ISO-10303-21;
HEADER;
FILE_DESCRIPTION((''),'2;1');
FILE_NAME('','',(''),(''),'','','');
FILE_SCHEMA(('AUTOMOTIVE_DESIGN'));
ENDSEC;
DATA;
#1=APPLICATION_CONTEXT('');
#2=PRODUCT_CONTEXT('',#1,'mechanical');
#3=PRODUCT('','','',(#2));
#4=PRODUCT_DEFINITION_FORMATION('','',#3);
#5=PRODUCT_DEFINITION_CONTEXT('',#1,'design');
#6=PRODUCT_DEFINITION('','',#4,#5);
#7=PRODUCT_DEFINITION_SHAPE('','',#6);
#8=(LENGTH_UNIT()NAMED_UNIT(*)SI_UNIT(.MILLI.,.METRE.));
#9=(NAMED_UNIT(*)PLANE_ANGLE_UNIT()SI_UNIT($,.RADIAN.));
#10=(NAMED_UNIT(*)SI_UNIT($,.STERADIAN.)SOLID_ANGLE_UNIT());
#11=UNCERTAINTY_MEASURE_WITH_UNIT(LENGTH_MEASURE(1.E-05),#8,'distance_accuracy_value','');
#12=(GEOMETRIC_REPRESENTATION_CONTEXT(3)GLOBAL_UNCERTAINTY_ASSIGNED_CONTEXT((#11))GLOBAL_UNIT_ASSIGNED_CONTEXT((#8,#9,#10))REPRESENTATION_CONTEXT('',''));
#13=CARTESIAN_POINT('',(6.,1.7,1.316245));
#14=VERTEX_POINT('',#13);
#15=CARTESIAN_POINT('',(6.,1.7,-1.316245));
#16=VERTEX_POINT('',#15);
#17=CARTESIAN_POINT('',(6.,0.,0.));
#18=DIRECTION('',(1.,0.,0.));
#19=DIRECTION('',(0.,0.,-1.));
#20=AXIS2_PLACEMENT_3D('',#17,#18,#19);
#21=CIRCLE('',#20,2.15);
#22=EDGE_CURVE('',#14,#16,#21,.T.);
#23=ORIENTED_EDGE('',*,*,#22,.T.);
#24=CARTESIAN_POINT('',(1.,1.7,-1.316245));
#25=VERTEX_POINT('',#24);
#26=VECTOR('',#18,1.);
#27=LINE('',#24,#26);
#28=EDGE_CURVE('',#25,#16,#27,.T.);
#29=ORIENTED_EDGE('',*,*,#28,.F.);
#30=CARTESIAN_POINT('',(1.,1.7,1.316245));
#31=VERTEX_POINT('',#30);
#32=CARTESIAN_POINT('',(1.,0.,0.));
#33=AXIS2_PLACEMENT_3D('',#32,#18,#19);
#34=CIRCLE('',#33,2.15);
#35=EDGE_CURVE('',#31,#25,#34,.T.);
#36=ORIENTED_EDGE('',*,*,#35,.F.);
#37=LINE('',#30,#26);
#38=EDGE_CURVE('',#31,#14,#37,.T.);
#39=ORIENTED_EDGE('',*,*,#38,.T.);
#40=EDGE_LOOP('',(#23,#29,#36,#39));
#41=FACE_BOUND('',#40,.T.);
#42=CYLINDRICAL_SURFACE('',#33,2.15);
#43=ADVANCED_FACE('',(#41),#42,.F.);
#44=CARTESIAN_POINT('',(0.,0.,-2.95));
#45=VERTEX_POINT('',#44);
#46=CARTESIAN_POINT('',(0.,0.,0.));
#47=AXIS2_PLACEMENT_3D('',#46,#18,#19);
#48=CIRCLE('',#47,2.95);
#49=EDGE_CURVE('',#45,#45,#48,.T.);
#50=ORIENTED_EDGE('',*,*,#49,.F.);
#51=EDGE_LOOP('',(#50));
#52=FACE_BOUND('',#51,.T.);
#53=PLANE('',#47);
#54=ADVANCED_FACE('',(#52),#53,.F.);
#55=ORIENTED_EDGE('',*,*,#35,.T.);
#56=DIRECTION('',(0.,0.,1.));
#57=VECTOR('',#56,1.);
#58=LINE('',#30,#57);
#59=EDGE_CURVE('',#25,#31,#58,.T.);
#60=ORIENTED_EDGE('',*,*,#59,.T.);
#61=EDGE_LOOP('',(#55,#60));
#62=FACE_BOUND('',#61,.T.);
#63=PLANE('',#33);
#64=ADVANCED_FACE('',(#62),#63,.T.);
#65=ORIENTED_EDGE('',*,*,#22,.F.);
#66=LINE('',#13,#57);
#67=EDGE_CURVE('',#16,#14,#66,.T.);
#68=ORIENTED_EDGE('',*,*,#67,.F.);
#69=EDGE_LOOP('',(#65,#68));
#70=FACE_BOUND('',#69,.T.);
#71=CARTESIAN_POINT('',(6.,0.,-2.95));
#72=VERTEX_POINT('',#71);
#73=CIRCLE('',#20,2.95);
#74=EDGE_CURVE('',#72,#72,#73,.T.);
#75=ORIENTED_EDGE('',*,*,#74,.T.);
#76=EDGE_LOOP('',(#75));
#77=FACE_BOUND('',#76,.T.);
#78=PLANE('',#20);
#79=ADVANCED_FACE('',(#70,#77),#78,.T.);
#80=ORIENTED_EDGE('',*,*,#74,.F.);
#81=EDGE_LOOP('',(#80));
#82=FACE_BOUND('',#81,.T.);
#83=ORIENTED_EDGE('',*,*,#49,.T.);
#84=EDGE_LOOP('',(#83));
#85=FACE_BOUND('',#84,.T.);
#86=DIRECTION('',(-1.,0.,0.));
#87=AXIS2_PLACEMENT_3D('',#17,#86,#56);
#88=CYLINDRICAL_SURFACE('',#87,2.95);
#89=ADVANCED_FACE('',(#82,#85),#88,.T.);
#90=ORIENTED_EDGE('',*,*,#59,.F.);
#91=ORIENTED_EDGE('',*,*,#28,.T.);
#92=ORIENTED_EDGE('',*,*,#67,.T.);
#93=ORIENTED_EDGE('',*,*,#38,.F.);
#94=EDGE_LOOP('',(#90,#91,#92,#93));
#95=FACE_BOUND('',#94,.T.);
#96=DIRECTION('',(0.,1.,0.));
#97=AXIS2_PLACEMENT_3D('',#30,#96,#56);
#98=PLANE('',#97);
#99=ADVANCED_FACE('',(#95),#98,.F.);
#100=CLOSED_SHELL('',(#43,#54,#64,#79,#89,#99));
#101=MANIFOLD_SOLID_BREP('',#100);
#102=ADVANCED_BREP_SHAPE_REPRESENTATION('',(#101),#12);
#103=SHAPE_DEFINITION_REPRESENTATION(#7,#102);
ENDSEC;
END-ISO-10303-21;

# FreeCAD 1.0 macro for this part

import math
import FreeCAD as App
import Part
import Sketcher

V = App.Vector

doc = App.newDocument("Part")
body = doc.addObject("PartDesign::Body", "Body")

# Sketch on YZ plane
sketch1 = body.newObject("Sketcher::SketchObject", "Sketch")
sketch1.AttachmentSupport = (doc.getObject("YZ_Plane"), [""])
sketch1.MapMode = "FlatFace"
sketch1.addGeometry(Part.Circle(V(0, 0, 0), V(0, 0, 1), 3), False)
sketch1.addConstraint([
    Sketcher.Constraint("Coincident", 0, 3, -1, 1),
    Sketcher.Constraint("Diameter", 0, 5.9),
])
pad1 = body.newObject("PartDesign::Pad", "Pad")
pad1.Profile = sketch1
pad1.Length = 6

# Sketch on YZ plane
sketch2 = body.newObject("Sketcher::SketchObject", "Sketch001")
sketch2.AttachmentSupport = (doc.getObject("YZ_Plane"), [""])
sketch2.MapMode = "FlatFace"
sketch2.AttachmentOffset = App.Placement(V(0, 0, 6), App.Rotation())
sketch2.addGeometry([
    Part.LineSegment(V(1.7, -1.3, 0), V(1.7, 1.3, 0)),
    Part.ArcOfCircle(Part.Circle(V(0, 0, 0), V(0, 0, 1), 2.1), math.radians(38), math.radians(322)),
], False)
sketch2.addConstraint([
    Sketcher.Constraint("Coincident", 0, 1, 1, 2),
    Sketcher.Constraint("Coincident", 1, 1, 0, 2),
    Sketcher.Constraint("Vertical", 0),
    Sketcher.Constraint("Coincident", 1, 3, -1, 1),
    Sketcher.Constraint("Radius", 1, 2.15),
    Sketcher.Constraint("DistanceX", -1, 1, 0, 1, 1.7),
])
pocket1 = body.newObject("PartDesign::Pocket", "Pocket")
pocket1.Profile = sketch2
pocket1.Length = 5

doc.recompute()
